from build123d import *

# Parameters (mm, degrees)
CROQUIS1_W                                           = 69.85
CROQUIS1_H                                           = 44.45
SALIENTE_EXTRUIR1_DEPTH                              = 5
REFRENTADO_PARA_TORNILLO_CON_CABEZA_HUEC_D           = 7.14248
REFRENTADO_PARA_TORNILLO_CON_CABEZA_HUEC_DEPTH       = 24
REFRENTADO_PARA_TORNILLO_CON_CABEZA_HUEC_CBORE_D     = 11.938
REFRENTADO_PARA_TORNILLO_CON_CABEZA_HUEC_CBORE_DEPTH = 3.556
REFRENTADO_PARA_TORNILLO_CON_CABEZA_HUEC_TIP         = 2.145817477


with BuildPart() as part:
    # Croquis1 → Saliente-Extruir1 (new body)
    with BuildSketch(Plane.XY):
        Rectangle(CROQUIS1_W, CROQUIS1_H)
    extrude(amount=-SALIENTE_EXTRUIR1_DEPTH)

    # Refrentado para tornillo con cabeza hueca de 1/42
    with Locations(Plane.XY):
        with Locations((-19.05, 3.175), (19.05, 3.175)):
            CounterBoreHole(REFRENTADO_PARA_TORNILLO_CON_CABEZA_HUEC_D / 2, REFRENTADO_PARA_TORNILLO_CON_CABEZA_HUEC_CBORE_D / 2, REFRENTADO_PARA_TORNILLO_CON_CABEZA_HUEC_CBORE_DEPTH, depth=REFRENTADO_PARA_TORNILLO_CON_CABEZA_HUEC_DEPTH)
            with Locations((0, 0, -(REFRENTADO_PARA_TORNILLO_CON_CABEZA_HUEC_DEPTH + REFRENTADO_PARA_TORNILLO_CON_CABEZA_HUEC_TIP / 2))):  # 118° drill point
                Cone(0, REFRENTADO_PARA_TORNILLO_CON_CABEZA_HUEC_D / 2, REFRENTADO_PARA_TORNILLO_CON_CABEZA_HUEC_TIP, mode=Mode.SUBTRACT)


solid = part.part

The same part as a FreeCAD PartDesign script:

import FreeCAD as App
import Part
import Sketcher


def add_polygon(sketch, points):
    """Adds a closed chain of lines whose ends are joined by coincident constraints."""
    first, n = sketch.GeometryCount, len(points)
    for a, b in zip(points, points[1:] + points[:1]):
        sketch.addGeometry(Part.LineSegment(App.Vector(*a, 0), App.Vector(*b, 0)), False)
    for i in range(n):
        sketch.addConstraint(Sketcher.Constraint("Coincident", first + i, 2, first + (i + 1) % n, 1))

doc = App.newDocument("Part")
body = doc.addObject("PartDesign::Body", "Body")

# Sketch on XY plane
sketch1 = body.newObject("Sketcher::SketchObject", "Sketch")
sketch1.AttachmentSupport = (doc.getObject("XY_Plane"), [""])
sketch1.MapMode = "FlatFace"
add_polygon(sketch1, [(-35, 22), (-35, -22), (35, -22), (35, 22)])  # lines 0-3
sketch1.addConstraint(Sketcher.Constraint("Vertical", 0))
sketch1.addConstraint(Sketcher.Constraint("Horizontal", 1))
sketch1.addConstraint(Sketcher.Constraint("Vertical", 2))
sketch1.addConstraint(Sketcher.Constraint("Horizontal", 3))
sketch1.addConstraint(Sketcher.Constraint("Symmetric", 0, 2, 2, 2, -1, 1))
sketch1.addConstraint(Sketcher.Constraint("DistanceX", 1, 1, 1, 2, 69.85))
sketch1.addConstraint(Sketcher.Constraint("DistanceY", 0, 2, 0, 1, 44.45))
pad1 = body.newObject("PartDesign::Pad", "Pad")
pad1.Profile = sketch1
pad1.Length = 5
pad1.Reversed = True

# Sketch on XY plane
sketch2 = body.newObject("Sketcher::SketchObject", "Sketch001")
sketch2.AttachmentSupport = (doc.getObject("XY_Plane"), [""])
sketch2.MapMode = "FlatFace"
sketch2.addGeometry(Part.Circle(App.Vector(-19.1, 3.2, 0), App.Vector(0, 0, 1), 3.6), False)
sketch2.addGeometry(Part.Circle(App.Vector(19.1, 3.2, 0), App.Vector(0, 0, 1), 3.6), False)
sketch2.addConstraint(Sketcher.Constraint("Equal", 0, 1))
sketch2.addConstraint(Sketcher.Constraint("Symmetric", 0, 3, 1, 3, -2))
sketch2.addConstraint(Sketcher.Constraint("DistanceX", 0, 3, 1, 3, 38.1))
sketch2.addConstraint(Sketcher.Constraint("Diameter", 0, 7.14248))
sketch2.addConstraint(Sketcher.Constraint("DistanceY", -1, 1, 0, 3, 3.175))
doc.recompute()
hole = body.newObject("PartDesign::Hole", "Hole")
hole.Profile = sketch2
hole.ThreadType = "None"
hole.Diameter = 7.14248
hole.DepthType = "Dimension"
hole.Depth = 24
hole.DrillPoint = "Angled"
hole.DrillPointAngle = 118
hole.HoleCutType = "Counterbore"
hole.HoleCutDiameter = 11.938
hole.HoleCutDepth = 3.556

doc.recompute()
